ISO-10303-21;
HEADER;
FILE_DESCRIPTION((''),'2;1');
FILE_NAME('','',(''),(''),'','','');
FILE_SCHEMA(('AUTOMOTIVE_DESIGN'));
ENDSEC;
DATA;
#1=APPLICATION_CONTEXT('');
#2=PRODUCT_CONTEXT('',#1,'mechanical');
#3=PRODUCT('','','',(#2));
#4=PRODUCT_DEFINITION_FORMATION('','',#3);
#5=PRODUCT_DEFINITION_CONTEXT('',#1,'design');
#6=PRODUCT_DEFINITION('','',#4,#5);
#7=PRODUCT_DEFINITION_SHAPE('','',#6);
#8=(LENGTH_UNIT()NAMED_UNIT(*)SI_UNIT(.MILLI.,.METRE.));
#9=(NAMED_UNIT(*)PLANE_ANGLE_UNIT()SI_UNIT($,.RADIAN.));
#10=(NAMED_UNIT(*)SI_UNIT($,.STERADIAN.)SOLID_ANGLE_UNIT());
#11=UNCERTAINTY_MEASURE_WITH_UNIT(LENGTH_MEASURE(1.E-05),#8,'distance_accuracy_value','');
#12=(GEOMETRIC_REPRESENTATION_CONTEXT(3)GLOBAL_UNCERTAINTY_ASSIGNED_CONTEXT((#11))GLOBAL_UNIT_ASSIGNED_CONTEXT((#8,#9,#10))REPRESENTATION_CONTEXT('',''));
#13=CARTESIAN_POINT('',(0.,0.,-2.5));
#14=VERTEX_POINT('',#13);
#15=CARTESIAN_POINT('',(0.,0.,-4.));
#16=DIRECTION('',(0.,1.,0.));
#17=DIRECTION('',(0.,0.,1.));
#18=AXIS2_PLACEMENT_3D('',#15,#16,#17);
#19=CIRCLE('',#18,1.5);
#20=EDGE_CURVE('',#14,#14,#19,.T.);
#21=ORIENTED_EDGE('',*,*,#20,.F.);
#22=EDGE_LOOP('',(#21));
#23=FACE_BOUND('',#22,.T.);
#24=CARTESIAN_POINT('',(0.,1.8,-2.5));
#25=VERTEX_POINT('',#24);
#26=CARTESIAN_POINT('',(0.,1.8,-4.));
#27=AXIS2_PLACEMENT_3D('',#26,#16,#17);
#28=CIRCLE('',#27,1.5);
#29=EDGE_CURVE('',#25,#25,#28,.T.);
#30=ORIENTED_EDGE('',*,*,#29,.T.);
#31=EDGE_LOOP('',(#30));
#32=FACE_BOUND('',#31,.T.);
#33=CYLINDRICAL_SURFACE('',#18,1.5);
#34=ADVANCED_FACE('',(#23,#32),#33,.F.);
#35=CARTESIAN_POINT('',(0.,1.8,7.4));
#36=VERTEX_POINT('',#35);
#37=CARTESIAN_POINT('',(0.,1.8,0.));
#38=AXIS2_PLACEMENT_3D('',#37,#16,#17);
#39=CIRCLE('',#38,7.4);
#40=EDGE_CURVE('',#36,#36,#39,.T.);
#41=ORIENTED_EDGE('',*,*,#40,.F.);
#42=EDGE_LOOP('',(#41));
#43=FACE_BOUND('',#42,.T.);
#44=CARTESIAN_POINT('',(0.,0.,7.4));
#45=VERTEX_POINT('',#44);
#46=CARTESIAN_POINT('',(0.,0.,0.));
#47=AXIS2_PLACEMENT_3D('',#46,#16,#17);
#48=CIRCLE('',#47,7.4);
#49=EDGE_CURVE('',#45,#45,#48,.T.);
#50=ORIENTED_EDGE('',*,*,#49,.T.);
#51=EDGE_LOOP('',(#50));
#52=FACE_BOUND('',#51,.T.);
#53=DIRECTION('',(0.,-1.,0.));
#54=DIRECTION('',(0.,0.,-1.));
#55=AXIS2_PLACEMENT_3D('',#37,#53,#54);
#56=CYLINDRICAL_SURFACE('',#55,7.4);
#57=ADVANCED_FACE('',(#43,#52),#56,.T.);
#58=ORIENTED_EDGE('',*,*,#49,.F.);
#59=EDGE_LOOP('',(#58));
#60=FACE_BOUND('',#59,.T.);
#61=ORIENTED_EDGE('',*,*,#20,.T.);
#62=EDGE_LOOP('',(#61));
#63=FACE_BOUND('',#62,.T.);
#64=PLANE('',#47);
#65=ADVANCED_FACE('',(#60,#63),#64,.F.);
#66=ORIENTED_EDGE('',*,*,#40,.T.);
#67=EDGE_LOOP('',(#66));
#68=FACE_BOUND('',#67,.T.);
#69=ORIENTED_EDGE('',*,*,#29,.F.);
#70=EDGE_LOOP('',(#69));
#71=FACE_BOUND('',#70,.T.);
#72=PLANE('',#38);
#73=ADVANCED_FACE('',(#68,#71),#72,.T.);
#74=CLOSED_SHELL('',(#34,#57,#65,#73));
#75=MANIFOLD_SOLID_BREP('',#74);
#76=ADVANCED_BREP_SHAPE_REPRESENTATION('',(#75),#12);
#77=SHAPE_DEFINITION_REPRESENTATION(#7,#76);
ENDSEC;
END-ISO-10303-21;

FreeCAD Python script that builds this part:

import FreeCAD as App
import Part
import Sketcher

doc = App.newDocument("Part")
body = doc.addObject("PartDesign::Body", "Body")

# Sketch on XZ plane
sketch1 = body.newObject("Sketcher::SketchObject", "Sketch")
sketch1.AttachmentSupport = (doc.getObject("XZ_Plane"), [""])
sketch1.MapMode = "FlatFace"
sketch1.addGeometry(Part.Circle(App.Vector(0, 0, 0), App.Vector(0, 0, 1), 7), False)
sketch1.addConstraint([
    Sketcher.Constraint("Coincident", 0, 3, -1, 1),
    Sketcher.Constraint("Diameter", 0, 14.8),
])
pad1 = body.newObject("PartDesign::Pad", "Pad")
pad1.Profile = sketch1
pad1.Length = 1.8
pad1.Reversed = True

# Sketch on XZ plane
sketch2 = body.newObject("Sketcher::SketchObject", "Sketch001")
sketch2.AttachmentSupport = (doc.getObject("XZ_Plane"), [""])
sketch2.MapMode = "FlatFace"
sketch2.AttachmentOffset = App.Placement(App.Vector(0, 0, -1.8), App.Rotation())
sketch2.addGeometry(Part.Circle(App.Vector(0, -4, 0), App.Vector(0, 0, 1), 1.5), False)
sketch2.addConstraint([
    Sketcher.Constraint("PointOnObject", 0, 3, -2),
    Sketcher.Constraint("Diameter", 0, 3.0),
    Sketcher.Constraint("DistanceY", 0, 3, -1, 1, 4.0),
])
pocket1 = body.newObject("PartDesign::Pocket", "Pocket")
pocket1.Profile = sketch2
pocket1.Length = 1.8
pocket1.Reversed = True

doc.recompute()
